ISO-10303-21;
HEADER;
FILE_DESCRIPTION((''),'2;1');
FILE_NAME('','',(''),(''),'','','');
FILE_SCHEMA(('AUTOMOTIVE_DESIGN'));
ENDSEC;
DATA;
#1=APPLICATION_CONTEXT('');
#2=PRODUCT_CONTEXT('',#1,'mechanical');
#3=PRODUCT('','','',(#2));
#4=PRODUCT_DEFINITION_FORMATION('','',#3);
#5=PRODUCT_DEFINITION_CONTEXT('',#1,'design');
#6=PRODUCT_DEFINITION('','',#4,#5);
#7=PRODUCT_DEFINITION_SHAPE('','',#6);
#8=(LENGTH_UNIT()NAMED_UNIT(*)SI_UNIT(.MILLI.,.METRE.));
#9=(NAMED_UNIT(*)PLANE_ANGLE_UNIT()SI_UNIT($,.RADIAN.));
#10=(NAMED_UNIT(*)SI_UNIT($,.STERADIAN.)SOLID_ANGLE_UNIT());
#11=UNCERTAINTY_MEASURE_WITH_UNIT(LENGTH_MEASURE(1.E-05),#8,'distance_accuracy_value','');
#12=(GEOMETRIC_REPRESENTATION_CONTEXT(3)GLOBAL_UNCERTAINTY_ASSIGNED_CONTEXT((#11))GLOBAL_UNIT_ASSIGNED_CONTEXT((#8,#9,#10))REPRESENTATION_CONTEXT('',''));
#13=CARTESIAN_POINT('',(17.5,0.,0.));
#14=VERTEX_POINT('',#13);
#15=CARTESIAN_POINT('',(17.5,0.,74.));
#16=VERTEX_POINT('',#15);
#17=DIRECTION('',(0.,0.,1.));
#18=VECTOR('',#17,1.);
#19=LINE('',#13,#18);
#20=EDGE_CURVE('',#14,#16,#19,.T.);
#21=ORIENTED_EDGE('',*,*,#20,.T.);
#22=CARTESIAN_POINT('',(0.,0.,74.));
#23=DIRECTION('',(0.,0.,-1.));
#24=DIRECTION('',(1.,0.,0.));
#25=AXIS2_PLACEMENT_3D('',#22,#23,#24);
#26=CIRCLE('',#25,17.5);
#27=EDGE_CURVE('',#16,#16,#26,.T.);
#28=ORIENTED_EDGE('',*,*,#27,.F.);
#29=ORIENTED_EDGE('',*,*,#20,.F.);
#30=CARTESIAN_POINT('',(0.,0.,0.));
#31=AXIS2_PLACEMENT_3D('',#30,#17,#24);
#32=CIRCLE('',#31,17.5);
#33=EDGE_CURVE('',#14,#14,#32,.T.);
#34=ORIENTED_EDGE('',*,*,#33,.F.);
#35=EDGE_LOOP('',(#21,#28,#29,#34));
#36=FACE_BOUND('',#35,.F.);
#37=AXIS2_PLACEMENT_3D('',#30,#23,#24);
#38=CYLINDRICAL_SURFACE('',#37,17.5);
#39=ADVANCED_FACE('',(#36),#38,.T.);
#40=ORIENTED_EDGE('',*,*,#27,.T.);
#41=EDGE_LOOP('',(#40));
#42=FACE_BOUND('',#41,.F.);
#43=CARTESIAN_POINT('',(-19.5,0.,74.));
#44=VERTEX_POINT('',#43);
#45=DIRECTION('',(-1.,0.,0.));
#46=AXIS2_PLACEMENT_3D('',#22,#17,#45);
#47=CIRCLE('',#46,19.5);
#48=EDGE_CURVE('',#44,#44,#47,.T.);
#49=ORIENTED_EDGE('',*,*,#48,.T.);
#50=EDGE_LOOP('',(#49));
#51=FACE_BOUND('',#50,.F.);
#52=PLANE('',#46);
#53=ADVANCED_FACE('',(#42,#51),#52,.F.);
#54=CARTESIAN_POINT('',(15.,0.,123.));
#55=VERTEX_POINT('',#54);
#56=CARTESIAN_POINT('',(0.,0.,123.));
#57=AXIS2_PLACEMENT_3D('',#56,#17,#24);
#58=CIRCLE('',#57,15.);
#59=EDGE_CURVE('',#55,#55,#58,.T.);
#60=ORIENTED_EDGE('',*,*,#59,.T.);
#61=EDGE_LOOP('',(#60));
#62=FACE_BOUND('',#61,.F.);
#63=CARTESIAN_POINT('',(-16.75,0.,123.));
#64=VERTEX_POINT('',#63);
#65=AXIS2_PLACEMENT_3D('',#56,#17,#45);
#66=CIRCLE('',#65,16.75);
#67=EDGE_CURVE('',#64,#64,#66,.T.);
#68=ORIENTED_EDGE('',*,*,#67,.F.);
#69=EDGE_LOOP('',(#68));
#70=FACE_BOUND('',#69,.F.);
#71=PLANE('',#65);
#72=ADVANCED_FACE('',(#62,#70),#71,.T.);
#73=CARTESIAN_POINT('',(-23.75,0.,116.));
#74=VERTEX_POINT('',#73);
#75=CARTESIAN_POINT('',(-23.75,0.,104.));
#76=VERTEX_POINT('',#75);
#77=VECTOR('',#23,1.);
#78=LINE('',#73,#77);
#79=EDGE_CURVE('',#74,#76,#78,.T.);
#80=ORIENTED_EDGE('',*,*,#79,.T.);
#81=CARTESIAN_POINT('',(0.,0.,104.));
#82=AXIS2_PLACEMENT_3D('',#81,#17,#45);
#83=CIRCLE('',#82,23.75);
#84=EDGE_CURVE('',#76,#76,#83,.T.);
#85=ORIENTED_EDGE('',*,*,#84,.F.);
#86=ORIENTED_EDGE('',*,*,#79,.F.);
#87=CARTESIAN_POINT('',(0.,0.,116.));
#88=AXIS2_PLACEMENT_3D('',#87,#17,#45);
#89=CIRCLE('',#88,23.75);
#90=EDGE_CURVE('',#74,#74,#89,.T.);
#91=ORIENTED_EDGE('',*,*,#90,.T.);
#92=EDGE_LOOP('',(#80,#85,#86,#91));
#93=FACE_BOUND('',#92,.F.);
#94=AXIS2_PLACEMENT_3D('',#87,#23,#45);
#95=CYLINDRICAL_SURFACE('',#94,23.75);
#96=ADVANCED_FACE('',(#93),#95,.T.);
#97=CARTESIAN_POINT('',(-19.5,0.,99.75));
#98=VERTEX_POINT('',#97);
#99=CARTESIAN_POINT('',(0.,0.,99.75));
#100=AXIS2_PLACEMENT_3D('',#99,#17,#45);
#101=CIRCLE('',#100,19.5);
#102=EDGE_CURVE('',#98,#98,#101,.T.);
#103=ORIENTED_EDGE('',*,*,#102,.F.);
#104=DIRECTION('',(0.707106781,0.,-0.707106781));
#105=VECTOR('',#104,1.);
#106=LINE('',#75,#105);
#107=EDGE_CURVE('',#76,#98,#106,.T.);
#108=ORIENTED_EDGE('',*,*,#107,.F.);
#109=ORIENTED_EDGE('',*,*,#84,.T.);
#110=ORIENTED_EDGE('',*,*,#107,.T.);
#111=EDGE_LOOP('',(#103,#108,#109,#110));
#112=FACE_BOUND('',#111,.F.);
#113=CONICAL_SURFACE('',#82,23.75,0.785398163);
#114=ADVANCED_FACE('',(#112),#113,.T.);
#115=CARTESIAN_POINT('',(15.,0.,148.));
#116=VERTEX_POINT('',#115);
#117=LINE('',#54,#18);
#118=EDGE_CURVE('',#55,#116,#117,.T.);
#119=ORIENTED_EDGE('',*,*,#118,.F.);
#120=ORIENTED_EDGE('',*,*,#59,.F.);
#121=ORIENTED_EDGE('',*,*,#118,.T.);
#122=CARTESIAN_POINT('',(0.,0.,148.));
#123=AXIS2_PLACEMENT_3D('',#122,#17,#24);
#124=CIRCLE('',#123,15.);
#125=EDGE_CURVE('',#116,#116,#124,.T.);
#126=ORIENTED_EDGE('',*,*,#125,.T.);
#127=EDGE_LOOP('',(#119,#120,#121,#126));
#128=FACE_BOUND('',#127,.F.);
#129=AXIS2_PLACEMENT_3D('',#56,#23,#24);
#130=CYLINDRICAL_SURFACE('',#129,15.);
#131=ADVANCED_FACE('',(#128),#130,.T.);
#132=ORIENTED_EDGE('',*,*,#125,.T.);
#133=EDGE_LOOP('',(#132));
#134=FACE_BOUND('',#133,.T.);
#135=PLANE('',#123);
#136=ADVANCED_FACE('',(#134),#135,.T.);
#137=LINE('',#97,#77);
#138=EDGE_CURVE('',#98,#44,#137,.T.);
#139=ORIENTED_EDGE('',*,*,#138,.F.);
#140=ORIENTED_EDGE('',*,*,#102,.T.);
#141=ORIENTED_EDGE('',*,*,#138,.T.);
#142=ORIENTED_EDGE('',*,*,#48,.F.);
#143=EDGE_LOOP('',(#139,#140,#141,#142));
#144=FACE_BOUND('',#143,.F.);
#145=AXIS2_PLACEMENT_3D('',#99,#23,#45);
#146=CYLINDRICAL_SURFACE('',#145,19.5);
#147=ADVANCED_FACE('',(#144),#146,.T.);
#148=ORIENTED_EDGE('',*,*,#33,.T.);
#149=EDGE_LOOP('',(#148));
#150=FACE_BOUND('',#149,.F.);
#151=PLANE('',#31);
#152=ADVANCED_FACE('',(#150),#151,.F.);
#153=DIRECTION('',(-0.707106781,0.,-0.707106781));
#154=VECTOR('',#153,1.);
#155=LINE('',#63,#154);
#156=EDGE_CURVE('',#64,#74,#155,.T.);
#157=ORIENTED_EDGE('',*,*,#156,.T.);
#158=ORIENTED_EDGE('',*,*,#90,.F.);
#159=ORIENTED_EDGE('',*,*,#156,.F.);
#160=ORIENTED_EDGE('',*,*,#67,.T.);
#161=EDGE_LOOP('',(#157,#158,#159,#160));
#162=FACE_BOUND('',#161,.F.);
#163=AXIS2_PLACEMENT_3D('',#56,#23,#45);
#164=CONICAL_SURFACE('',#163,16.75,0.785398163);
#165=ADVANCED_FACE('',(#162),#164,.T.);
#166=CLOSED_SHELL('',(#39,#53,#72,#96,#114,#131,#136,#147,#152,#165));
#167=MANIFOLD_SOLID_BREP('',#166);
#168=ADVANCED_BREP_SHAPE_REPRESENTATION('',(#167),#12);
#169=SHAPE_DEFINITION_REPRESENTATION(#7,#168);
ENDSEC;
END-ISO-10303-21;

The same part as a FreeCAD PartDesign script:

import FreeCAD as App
import Part
import Sketcher
Q = App.Units.Quantity


def add_polygon(sketch, points):
    """Adds a closed chain of lines whose ends are joined by coincident constraints."""
    first, n = sketch.GeometryCount, len(points)
    for a, b in zip(points, points[1:] + points[:1]):
        sketch.addGeometry(Part.LineSegment(App.Vector(*a, 0), App.Vector(*b, 0)), False)
    for i in range(n):
        sketch.addConstraint(Sketcher.Constraint("Coincident", first + i, 2, first + (i + 1) % n, 1))

doc = App.newDocument("Part")
body = doc.addObject("PartDesign::Body", "Body")

# Sketch on XY plane
sketch1 = body.newObject("Sketcher::SketchObject", "Sketch")
sketch1.AttachmentSupport = (doc.getObject("XY_Plane"), [""])
sketch1.MapMode = "FlatFace"
sketch1.addGeometry(Part.Circle(App.Vector(0, 0, 0), App.Vector(0, 0, 1), 18), False)
sketch1.addConstraint([
    Sketcher.Constraint("Coincident", 0, 3, -1, 1),
    Sketcher.Constraint("Diameter", 0, 35.0),
])
pad1 = body.newObject("PartDesign::Pad", "Pad")
pad1.Profile = sketch1
pad1.Length = 75

# Sketch on XZ plane
sketch2 = body.newObject("Sketcher::SketchObject", "Sketch001")
sketch2.AttachmentSupport = (doc.getObject("XZ_Plane"), [""])
sketch2.MapMode = "FlatFace"
add_polygon(sketch2, [(-20, 74), (0, 74), (0, 123), (-17, 123), (-24, 116), (-24, 104), (-20, 100)])  # lines 0-6
sketch2.addConstraint([
    Sketcher.Constraint("Horizontal", 0),
    Sketcher.Constraint("Vertical", 1),
    Sketcher.Constraint("Horizontal", 2),
    Sketcher.Constraint("Vertical", 4),
    Sketcher.Constraint("Vertical", 6),
    Sketcher.Constraint("PointOnObject", 0, 2, -2),
    Sketcher.Constraint("Perpendicular", 3, 5),
    Sketcher.Constraint("DistanceY", 1, 1, 1, 2, 49.0),
    Sketcher.Constraint("DistanceY", 4, 2, 4, 1, 12.0),
    Sketcher.Constraint("Angle", 3, Q("-135 deg")),
    Sketcher.Constraint("DistanceX", 0, 1, 0, 2, 19.5),
    Sketcher.Constraint("DistanceY", -1, 1, 0, 2, 74.0),
    Sketcher.Constraint("DistanceY", -1, 1, 3, 2, 116.0),
    Sketcher.Constraint("DistanceX", 2, 2, 2, 1, 16.75),
])
revolution = body.newObject("PartDesign::Revolution", "Revolution")
revolution.Profile = sketch2
revolution.ReferenceAxis = (sketch2, ["V_Axis"])
revolution.Angle = 360

# Sketch on XY plane
sketch3 = body.newObject("Sketcher::SketchObject", "Sketch002")
sketch3.AttachmentSupport = (doc.getObject("XY_Plane"), [""])
sketch3.MapMode = "FlatFace"
sketch3.AttachmentOffset = App.Placement(App.Vector(0, 0, 123), App.Rotation())
sketch3.addGeometry(Part.Circle(App.Vector(0, 0, 0), App.Vector(0, 0, 1), 15), False)
sketch3.addConstraint([
    Sketcher.Constraint("Coincident", 0, 3, -1, 1),
    Sketcher.Constraint("Diameter", 0, 30.0),
])
pad2 = body.newObject("PartDesign::Pad", "Pad001")
pad2.Profile = sketch3
pad2.Length = 25

doc.recompute()
